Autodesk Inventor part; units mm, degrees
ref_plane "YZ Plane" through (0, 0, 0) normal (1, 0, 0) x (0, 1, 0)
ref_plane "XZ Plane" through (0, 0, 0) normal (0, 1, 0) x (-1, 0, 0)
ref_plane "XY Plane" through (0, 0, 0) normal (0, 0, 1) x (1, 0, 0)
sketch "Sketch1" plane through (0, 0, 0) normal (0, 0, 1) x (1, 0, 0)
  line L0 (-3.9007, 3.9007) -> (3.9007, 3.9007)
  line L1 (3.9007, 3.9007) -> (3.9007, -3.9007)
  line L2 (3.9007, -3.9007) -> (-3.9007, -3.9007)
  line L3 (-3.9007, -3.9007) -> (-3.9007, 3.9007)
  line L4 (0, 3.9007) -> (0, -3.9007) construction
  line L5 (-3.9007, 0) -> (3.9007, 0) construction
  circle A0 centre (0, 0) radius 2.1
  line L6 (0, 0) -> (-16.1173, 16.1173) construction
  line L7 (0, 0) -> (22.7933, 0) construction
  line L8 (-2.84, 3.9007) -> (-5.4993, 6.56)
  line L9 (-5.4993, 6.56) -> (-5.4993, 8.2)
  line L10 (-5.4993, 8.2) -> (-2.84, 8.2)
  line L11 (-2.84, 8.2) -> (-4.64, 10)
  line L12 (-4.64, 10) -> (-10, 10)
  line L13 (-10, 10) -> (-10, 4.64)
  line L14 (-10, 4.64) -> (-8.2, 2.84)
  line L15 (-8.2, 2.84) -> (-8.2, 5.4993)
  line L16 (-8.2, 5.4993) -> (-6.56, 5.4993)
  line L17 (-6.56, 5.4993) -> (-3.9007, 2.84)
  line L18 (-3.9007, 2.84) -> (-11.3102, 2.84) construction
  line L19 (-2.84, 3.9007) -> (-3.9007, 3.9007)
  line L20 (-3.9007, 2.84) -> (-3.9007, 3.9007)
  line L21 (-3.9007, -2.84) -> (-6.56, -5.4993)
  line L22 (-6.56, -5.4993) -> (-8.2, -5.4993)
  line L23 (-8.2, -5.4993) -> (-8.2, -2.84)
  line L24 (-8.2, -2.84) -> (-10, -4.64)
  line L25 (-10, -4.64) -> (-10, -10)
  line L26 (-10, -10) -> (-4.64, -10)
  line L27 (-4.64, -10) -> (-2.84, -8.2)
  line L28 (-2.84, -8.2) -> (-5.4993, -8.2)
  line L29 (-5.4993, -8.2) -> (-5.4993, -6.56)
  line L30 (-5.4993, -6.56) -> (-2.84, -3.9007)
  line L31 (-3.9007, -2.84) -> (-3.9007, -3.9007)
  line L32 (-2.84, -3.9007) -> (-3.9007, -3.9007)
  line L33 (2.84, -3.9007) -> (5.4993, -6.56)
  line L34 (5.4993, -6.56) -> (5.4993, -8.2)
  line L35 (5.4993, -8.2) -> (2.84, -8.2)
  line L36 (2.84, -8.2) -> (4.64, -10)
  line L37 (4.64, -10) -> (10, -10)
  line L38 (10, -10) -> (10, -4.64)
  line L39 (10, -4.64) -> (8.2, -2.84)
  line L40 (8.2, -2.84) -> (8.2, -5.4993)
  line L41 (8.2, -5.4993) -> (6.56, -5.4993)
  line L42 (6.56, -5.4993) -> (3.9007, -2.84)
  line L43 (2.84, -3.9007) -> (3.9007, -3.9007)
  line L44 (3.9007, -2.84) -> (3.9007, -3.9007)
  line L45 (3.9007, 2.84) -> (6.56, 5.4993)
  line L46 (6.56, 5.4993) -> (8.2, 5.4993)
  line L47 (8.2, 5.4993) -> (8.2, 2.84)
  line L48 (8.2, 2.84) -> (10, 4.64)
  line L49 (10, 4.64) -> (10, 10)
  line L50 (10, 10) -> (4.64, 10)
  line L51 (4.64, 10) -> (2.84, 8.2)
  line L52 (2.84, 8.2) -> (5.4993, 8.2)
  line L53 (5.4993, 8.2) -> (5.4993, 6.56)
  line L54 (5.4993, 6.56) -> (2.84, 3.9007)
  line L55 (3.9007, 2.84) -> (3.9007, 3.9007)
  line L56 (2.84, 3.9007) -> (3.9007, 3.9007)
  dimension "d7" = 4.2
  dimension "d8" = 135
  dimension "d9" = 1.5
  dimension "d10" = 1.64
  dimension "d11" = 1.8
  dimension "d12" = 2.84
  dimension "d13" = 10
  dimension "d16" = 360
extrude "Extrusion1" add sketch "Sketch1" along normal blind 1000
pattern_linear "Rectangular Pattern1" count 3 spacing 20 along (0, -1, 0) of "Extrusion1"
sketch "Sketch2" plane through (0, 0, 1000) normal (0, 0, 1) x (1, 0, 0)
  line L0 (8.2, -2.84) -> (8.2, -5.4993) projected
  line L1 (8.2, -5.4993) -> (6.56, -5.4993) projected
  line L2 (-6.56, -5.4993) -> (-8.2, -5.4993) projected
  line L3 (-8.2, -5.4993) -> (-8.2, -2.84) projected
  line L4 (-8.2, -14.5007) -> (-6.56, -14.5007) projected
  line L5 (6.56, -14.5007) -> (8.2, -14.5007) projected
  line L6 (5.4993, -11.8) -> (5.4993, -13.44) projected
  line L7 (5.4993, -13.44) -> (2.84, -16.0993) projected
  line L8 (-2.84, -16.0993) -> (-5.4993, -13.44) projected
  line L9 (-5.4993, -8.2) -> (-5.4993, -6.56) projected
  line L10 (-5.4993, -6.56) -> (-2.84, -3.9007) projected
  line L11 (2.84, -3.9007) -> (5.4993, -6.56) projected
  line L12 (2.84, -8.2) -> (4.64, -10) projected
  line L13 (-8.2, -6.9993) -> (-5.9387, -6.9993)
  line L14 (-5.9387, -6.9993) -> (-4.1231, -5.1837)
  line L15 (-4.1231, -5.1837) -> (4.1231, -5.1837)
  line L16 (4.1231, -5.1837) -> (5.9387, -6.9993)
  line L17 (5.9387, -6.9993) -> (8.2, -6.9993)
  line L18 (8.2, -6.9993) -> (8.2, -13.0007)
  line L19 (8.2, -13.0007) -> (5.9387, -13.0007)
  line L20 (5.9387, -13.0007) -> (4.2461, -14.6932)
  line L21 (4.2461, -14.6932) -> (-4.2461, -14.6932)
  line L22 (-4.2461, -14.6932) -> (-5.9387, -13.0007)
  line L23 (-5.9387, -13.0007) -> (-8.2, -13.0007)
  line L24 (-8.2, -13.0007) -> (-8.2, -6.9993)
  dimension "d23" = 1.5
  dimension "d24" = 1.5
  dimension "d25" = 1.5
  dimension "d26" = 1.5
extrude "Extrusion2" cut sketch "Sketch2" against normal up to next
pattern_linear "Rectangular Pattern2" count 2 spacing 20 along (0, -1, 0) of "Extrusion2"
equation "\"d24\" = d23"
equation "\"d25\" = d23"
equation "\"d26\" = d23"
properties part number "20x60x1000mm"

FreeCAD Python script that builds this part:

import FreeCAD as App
import Part
import Sketcher

doc = App.newDocument("Part")
body = doc.addObject("PartDesign::Body", "Body")

# Sketch on XY plane
sketch1 = body.newObject("Sketcher::SketchObject", "Sketch")
sketch1.AttachmentSupport = (doc.getObject("XY_Plane"), [""])
sketch1.MapMode = "FlatFace"
sketch1.addGeometry(Part.LineSegment(App.Vector(-6.56, 5.4993, 0), App.Vector(-3.9007, 2.84, 0)), False)
sketch1.addGeometry(Part.LineSegment(App.Vector(-3.9007, 2.84, 0), App.Vector(-3.9007, -2.84, 0)), False)
sketch1.addGeometry(Part.LineSegment(App.Vector(-3.9007, -2.84, 0), App.Vector(-6.56, -5.4993, 0)), False)
sketch1.addGeometry(Part.LineSegment(App.Vector(-6.56, -5.4993, 0), App.Vector(-8.2, -5.4993, 0)), False)
sketch1.addGeometry(Part.LineSegment(App.Vector(-8.2, -5.4993, 0), App.Vector(-8.2, -2.84, 0)), False)
sketch1.addGeometry(Part.LineSegment(App.Vector(-8.2, -2.84, 0), App.Vector(-10, -4.64, 0)), False)
sketch1.addGeometry(Part.LineSegment(App.Vector(-10, -4.64, 0), App.Vector(-10, -10, 0)), False)
sketch1.addGeometry(Part.LineSegment(App.Vector(-10, -10, 0), App.Vector(-4.64, -10, 0)), False)
sketch1.addGeometry(Part.LineSegment(App.Vector(-4.64, -10, 0), App.Vector(-2.84, -8.2, 0)), False)
sketch1.addGeometry(Part.LineSegment(App.Vector(-2.84, -8.2, 0), App.Vector(-5.4993, -8.2, 0)), False)
sketch1.addGeometry(Part.LineSegment(App.Vector(-5.4993, -8.2, 0), App.Vector(-5.4993, -6.56, 0)), False)
sketch1.addGeometry(Part.LineSegment(App.Vector(-5.4993, -6.56, 0), App.Vector(-2.84, -3.9007, 0)), False)
sketch1.addGeometry(Part.LineSegment(App.Vector(-2.84, -3.9007, 0), App.Vector(2.84, -3.9007, 0)), False)
sketch1.addGeometry(Part.LineSegment(App.Vector(2.84, -3.9007, 0), App.Vector(5.4993, -6.56, 0)), False)
sketch1.addGeometry(Part.LineSegment(App.Vector(5.4993, -6.56, 0), App.Vector(5.4993, -8.2, 0)), False)
sketch1.addGeometry(Part.LineSegment(App.Vector(5.4993, -8.2, 0), App.Vector(2.84, -8.2, 0)), False)
sketch1.addGeometry(Part.LineSegment(App.Vector(2.84, -8.2, 0), App.Vector(4.64, -10, 0)), False)
sketch1.addGeometry(Part.LineSegment(App.Vector(4.64, -10, 0), App.Vector(10, -10, 0)), False)
sketch1.addGeometry(Part.LineSegment(App.Vector(10, -10, 0), App.Vector(10, -4.64, 0)), False)
sketch1.addGeometry(Part.LineSegment(App.Vector(10, -4.64, 0), App.Vector(8.2, -2.84, 0)), False)
sketch1.addGeometry(Part.LineSegment(App.Vector(8.2, -2.84, 0), App.Vector(8.2, -5.4993, 0)), False)
sketch1.addGeometry(Part.LineSegment(App.Vector(8.2, -5.4993, 0), App.Vector(6.56, -5.4993, 0)), False)
sketch1.addGeometry(Part.LineSegment(App.Vector(6.56, -5.4993, 0), App.Vector(3.9007, -2.84, 0)), False)
sketch1.addGeometry(Part.LineSegment(App.Vector(3.9007, -2.84, 0), App.Vector(3.9007, 2.84, 0)), False)
sketch1.addGeometry(Part.LineSegment(App.Vector(3.9007, 2.84, 0), App.Vector(6.56, 5.4993, 0)), False)
sketch1.addGeometry(Part.LineSegment(App.Vector(6.56, 5.4993, 0), App.Vector(8.2, 5.4993, 0)), False)
sketch1.addGeometry(Part.LineSegment(App.Vector(8.2, 5.4993, 0), App.Vector(8.2, 2.84, 0)), False)
sketch1.addGeometry(Part.LineSegment(App.Vector(8.2, 2.84, 0), App.Vector(10, 4.64, 0)), False)
sketch1.addGeometry(Part.LineSegment(App.Vector(10, 4.64, 0), App.Vector(10, 10, 0)), False)
sketch1.addGeometry(Part.LineSegment(App.Vector(10, 10, 0), App.Vector(4.64, 10, 0)), False)
sketch1.addGeometry(Part.LineSegment(App.Vector(4.64, 10, 0), App.Vector(2.84, 8.2, 0)), False)
sketch1.addGeometry(Part.LineSegment(App.Vector(2.84, 8.2, 0), App.Vector(5.4993, 8.2, 0)), False)
sketch1.addGeometry(Part.LineSegment(App.Vector(5.4993, 8.2, 0), App.Vector(5.4993, 6.56, 0)), False)
sketch1.addGeometry(Part.LineSegment(App.Vector(5.4993, 6.56, 0), App.Vector(2.84, 3.9007, 0)), False)
sketch1.addGeometry(Part.LineSegment(App.Vector(2.84, 3.9007, 0), App.Vector(-2.84, 3.9007, 0)), False)
sketch1.addGeometry(Part.LineSegment(App.Vector(-2.84, 3.9007, 0), App.Vector(-5.4993, 6.56, 0)), False)
sketch1.addGeometry(Part.LineSegment(App.Vector(-5.4993, 6.56, 0), App.Vector(-5.4993, 8.2, 0)), False)
sketch1.addGeometry(Part.LineSegment(App.Vector(-5.4993, 8.2, 0), App.Vector(-2.84, 8.2, 0)), False)
sketch1.addGeometry(Part.LineSegment(App.Vector(-2.84, 8.2, 0), App.Vector(-4.64, 10, 0)), False)
sketch1.addGeometry(Part.LineSegment(App.Vector(-4.64, 10, 0), App.Vector(-10, 10, 0)), False)
sketch1.addGeometry(Part.LineSegment(App.Vector(-10, 10, 0), App.Vector(-10, 4.64, 0)), False)
sketch1.addGeometry(Part.LineSegment(App.Vector(-10, 4.64, 0), App.Vector(-8.2, 2.84, 0)), False)
sketch1.addGeometry(Part.LineSegment(App.Vector(-8.2, 2.84, 0), App.Vector(-8.2, 5.4993, 0)), False)
sketch1.addGeometry(Part.LineSegment(App.Vector(-8.2, 5.4993, 0), App.Vector(-6.56, 5.4993, 0)), False)
sketch1.addGeometry(Part.Circle(App.Vector(0, 0, 0), App.Vector(0, 0, 1), 2.1), False)
sketch1.addConstraint(Sketcher.Constraint("Coincident", 0, 2, 1, 1))
sketch1.addConstraint(Sketcher.Constraint("Coincident", 1, 2, 2, 1))
sketch1.addConstraint(Sketcher.Constraint("Coincident", 2, 2, 3, 1))
sketch1.addConstraint(Sketcher.Constraint("Coincident", 3, 2, 4, 1))
sketch1.addConstraint(Sketcher.Constraint("Coincident", 4, 2, 5, 1))
sketch1.addConstraint(Sketcher.Constraint("Coincident", 5, 2, 6, 1))
sketch1.addConstraint(Sketcher.Constraint("Coincident", 6, 2, 7, 1))
sketch1.addConstraint(Sketcher.Constraint("Coincident", 7, 2, 8, 1))
sketch1.addConstraint(Sketcher.Constraint("Coincident", 8, 2, 9, 1))
sketch1.addConstraint(Sketcher.Constraint("Coincident", 9, 2, 10, 1))
sketch1.addConstraint(Sketcher.Constraint("Coincident", 10, 2, 11, 1))
sketch1.addConstraint(Sketcher.Constraint("Coincident", 11, 2, 12, 1))
sketch1.addConstraint(Sketcher.Constraint("Coincident", 12, 2, 13, 1))
sketch1.addConstraint(Sketcher.Constraint("Coincident", 13, 2, 14, 1))
sketch1.addConstraint(Sketcher.Constraint("Coincident", 14, 2, 15, 1))
sketch1.addConstraint(Sketcher.Constraint("Coincident", 15, 2, 16, 1))
sketch1.addConstraint(Sketcher.Constraint("Coincident", 16, 2, 17, 1))
sketch1.addConstraint(Sketcher.Constraint("Coincident", 17, 2, 18, 1))
sketch1.addConstraint(Sketcher.Constraint("Coincident", 18, 2, 19, 1))
sketch1.addConstraint(Sketcher.Constraint("Coincident", 19, 2, 20, 1))
sketch1.addConstraint(Sketcher.Constraint("Coincident", 20, 2, 21, 1))
sketch1.addConstraint(Sketcher.Constraint("Coincident", 21, 2, 22, 1))
sketch1.addConstraint(Sketcher.Constraint("Coincident", 22, 2, 23, 1))
sketch1.addConstraint(Sketcher.Constraint("Coincident", 23, 2, 24, 1))
sketch1.addConstraint(Sketcher.Constraint("Coincident", 24, 2, 25, 1))
sketch1.addConstraint(Sketcher.Constraint("Coincident", 25, 2, 26, 1))
sketch1.addConstraint(Sketcher.Constraint("Coincident", 26, 2, 27, 1))
sketch1.addConstraint(Sketcher.Constraint("Coincident", 27, 2, 28, 1))
sketch1.addConstraint(Sketcher.Constraint("Coincident", 28, 2, 29, 1))
sketch1.addConstraint(Sketcher.Constraint("Coincident", 29, 2, 30, 1))
sketch1.addConstraint(Sketcher.Constraint("Coincident", 30, 2, 31, 1))
sketch1.addConstraint(Sketcher.Constraint("Coincident", 31, 2, 32, 1))
sketch1.addConstraint(Sketcher.Constraint("Coincident", 32, 2, 33, 1))
sketch1.addConstraint(Sketcher.Constraint("Coincident", 33, 2, 34, 1))
sketch1.addConstraint(Sketcher.Constraint("Coincident", 34, 2, 35, 1))
sketch1.addConstraint(Sketcher.Constraint("Coincident", 35, 2, 36, 1))
sketch1.addConstraint(Sketcher.Constraint("Coincident", 36, 2, 37, 1))
sketch1.addConstraint(Sketcher.Constraint("Coincident", 37, 2, 38, 1))
sketch1.addConstraint(Sketcher.Constraint("Coincident", 38, 2, 39, 1))
sketch1.addConstraint(Sketcher.Constraint("Coincident", 39, 2, 40, 1))
sketch1.addConstraint(Sketcher.Constraint("Coincident", 40, 2, 41, 1))
sketch1.addConstraint(Sketcher.Constraint("Coincident", 41, 2, 42, 1))
sketch1.addConstraint(Sketcher.Constraint("Coincident", 42, 2, 43, 1))
sketch1.addConstraint(Sketcher.Constraint("Coincident", 43, 2, 0, 1))
sketch1.addConstraint(Sketcher.Constraint("Vertical", 1))
sketch1.addConstraint(Sketcher.Constraint("Horizontal", 3))
sketch1.addConstraint(Sketcher.Constraint("Vertical", 4))
sketch1.addConstraint(Sketcher.Constraint("Vertical", 6))
sketch1.addConstraint(Sketcher.Constraint("Horizontal", 7))
sketch1.addConstraint(Sketcher.Constraint("Horizontal", 9))
sketch1.addConstraint(Sketcher.Constraint("Vertical", 10))
sketch1.addConstraint(Sketcher.Constraint("Horizontal", 12))
sketch1.addConstraint(Sketcher.Constraint("Vertical", 14))
sketch1.addConstraint(Sketcher.Constraint("Horizontal", 15))
sketch1.addConstraint(Sketcher.Constraint("Horizontal", 17))
sketch1.addConstraint(Sketcher.Constraint("Vertical", 18))
sketch1.addConstraint(Sketcher.Constraint("Vertical", 20))
sketch1.addConstraint(Sketcher.Constraint("Horizontal", 21))
sketch1.addConstraint(Sketcher.Constraint("Vertical", 23))
sketch1.addConstraint(Sketcher.Constraint("Horizontal", 25))
sketch1.addConstraint(Sketcher.Constraint("Vertical", 26))
sketch1.addConstraint(Sketcher.Constraint("Vertical", 28))
sketch1.addConstraint(Sketcher.Constraint("Horizontal", 29))
sketch1.addConstraint(Sketcher.Constraint("Horizontal", 31))
sketch1.addConstraint(Sketcher.Constraint("Vertical", 32))
sketch1.addConstraint(Sketcher.Constraint("Horizontal", 34))
sketch1.addConstraint(Sketcher.Constraint("Vertical", 36))
sketch1.addConstraint(Sketcher.Constraint("Horizontal", 37))
sketch1.addConstraint(Sketcher.Constraint("Horizontal", 39))
sketch1.addConstraint(Sketcher.Constraint("Vertical", 40))
sketch1.addConstraint(Sketcher.Constraint("Vertical", 42))
sketch1.addConstraint(Sketcher.Constraint("Horizontal", 43))
sketch1.addConstraint(Sketcher.Constraint("Coincident", 44, 3, -1, 1))
sketch1.addConstraint(Sketcher.Constraint("Symmetric", 0, 2, 22, 2, -1, 1))
sketch1.addConstraint(Sketcher.Constraint("Symmetric", 2, 2, 24, 2, -1, 1))
sketch1.addConstraint(Sketcher.Constraint("Symmetric", 4, 2, 26, 2, -1, 1))
sketch1.addConstraint(Sketcher.Constraint("Symmetric", 5, 2, 27, 2, -1, 1))
sketch1.addConstraint(Sketcher.Constraint("Symmetric", 7, 2, 29, 2, -1, 1))
sketch1.addConstraint(Sketcher.Constraint("Symmetric", 8, 2, 30, 2, -1, 1))
sketch1.addConstraint(Sketcher.Constraint("Symmetric", 10, 2, 32, 2, -1, 1))
sketch1.addConstraint(Sketcher.Constraint("Symmetric", 11, 2, 33, 2, -1, 1))
sketch1.addConstraint(Sketcher.Constraint("Symmetric", 13, 2, 35, 2, -1, 1))
sketch1.addConstraint(Sketcher.Constraint("Symmetric", 15, 2, 37, 2, -1, 1))
sketch1.addConstraint(Sketcher.Constraint("Symmetric", 16, 2, 38, 2, -1, 1))
sketch1.addConstraint(Sketcher.Constraint("Symmetric", 18, 2, 40, 2, -1, 1))
sketch1.addConstraint(Sketcher.Constraint("Symmetric", 19, 2, 41, 2, -1, 1))
sketch1.addConstraint(Sketcher.Constraint("Symmetric", 21, 2, 43, 2, -1, 1))
sketch1.addConstraint(Sketcher.Constraint("Symmetric", 10, 2, 13, 2, -2))
sketch1.addConstraint(Sketcher.Constraint("Symmetric", 8, 2, 15, 2, -2))
sketch1.addConstraint(Sketcher.Constraint("Symmetric", 7, 2, 16, 2, -2))
sketch1.addConstraint(Sketcher.Constraint("Symmetric", 5, 2, 18, 2, -2))
sketch1.addConstraint(Sketcher.Constraint("Symmetric", 4, 2, 19, 2, -2))
sketch1.addConstraint(Sketcher.Constraint("Symmetric", 2, 2, 21, 2, -2))
sketch1.addConstraint(Sketcher.Constraint("Perpendicular", 0, 2))
sketch1.addConstraint(Sketcher.Constraint("Parallel", 2, 5))
sketch1.addConstraint(Sketcher.Constraint("Parallel", 5, 8))
sketch1.addConstraint(Sketcher.Constraint("Parallel", 8, 11))
sketch1.addConstraint(Sketcher.Constraint("Perpendicular", 11, 13))
sketch1.addConstraint(Sketcher.Constraint("Parallel", 13, 16))
sketch1.addConstraint(Sketcher.Constraint("Perpendicular", 22, 24))
sketch1.addConstraint(Sketcher.Constraint("Perpendicular", 33, 35))
sketch1.addConstraint(Sketcher.Constraint("Horizontal", 1, 2, 4, 2))
sketch1.addConstraint(Sketcher.Constraint("Vertical", 8, 2, 11, 2))
sketch1.addConstraint(Sketcher.Constraint("Equal", 34, 1))
sketch1.addConstraint(Sketcher.Constraint("Equal", 37, 4))
sketch1.addConstraint(Sketcher.Constraint("Equal", 39, 6))
sketch1.addConstraint(Sketcher.Constraint("Equal", 43, 10))
sketch1.addConstraint(Sketcher.Constraint("Equal", 5, 8))
sketch1.addConstraint(Sketcher.Constraint("Diameter", 44, 4.2))
sketch1.addConstraint(Sketcher.Constraint("DistanceX", 5, 2, -1, 1, 10.0))
sketch1.addConstraint(Sketcher.Constraint("DistanceX", 3, 2, 3, 1, 1.64))
sketch1.addConstraint(Sketcher.Constraint("DistanceX", 5, 2, 3, 2, 1.8))
sketch1.addConstraint(Sketcher.Constraint("DistanceY", -1, 1, 0, 2, 2.84))
sketch1.addConstraint(Sketcher.Constraint("DistanceX", 9, 2, 9, 1, 2.6593))
pad1 = body.newObject("PartDesign::Pad", "Pad")
pad1.Profile = sketch1
pad1.Length = 1000
doc.recompute()

linearpattern = body.newObject("PartDesign::LinearPattern", "LinearPattern")
linearpattern.Originals = [pad1]
linearpattern.Direction = (doc.getObject("Y_Axis"), [""])
linearpattern.Mode = "offset"
linearpattern.Offset = 20
linearpattern.Occurrences = 3
linearpattern.Reversed = True
body.Tip = linearpattern

# Sketch on XY plane
sketch2 = body.newObject("Sketcher::SketchObject", "Sketch001")
sketch2.AttachmentSupport = (doc.getObject("XY_Plane"), [""])
sketch2.MapMode = "FlatFace"
sketch2.AttachmentOffset = App.Placement(App.Vector(0, 0, 1000), App.Rotation())
sketch2.addGeometry(Part.LineSegment(App.Vector(4.2461, -14.6932, 0), App.Vector(5.4993, -13.44, 0)), False)
sketch2.addGeometry(Part.LineSegment(App.Vector(5.499337, -13.440037, 0), App.Vector(5.9387, -13.0007, 0)), False)
sketch2.addGeometry(Part.LineSegment(App.Vector(5.9387, -13.0007, 0), App.Vector(8.2, -13.0007, 0)), False)
sketch2.addGeometry(Part.LineSegment(App.Vector(8.2, -13.0007, 0), App.Vector(8.2, -6.9993, 0)), False)
sketch2.addGeometry(Part.LineSegment(App.Vector(8.2, -6.9993, 0), App.Vector(5.9387, -6.9993, 0)), False)
sketch2.addGeometry(Part.LineSegment(App.Vector(5.9387, -6.9993, 0), App.Vector(5.49935, -6.55995, 0)), False)
sketch2.addGeometry(Part.LineSegment(App.Vector(5.4993, -6.56, 0), App.Vector(4.12305, -5.18375, 0)), False)
sketch2.addGeometry(Part.LineSegment(App.Vector(4.1231, -5.1837, 0), App.Vector(-4.1231, -5.1837, 0)), False)
sketch2.addGeometry(Part.LineSegment(App.Vector(-4.12305, -5.18375, 0), App.Vector(-5.4993, -6.56, 0)), False)
sketch2.addGeometry(Part.LineSegment(App.Vector(-5.49935, -6.55995, 0), App.Vector(-5.9387, -6.9993, 0)), False)
sketch2.addGeometry(Part.LineSegment(App.Vector(-5.9387, -6.9993, 0), App.Vector(-8.2, -6.9993, 0)), False)
sketch2.addGeometry(Part.LineSegment(App.Vector(-8.2, -6.9993, 0), App.Vector(-8.2, -13.0007, 0)), False)
sketch2.addGeometry(Part.LineSegment(App.Vector(-8.2, -13.0007, 0), App.Vector(-5.9387, -13.0007, 0)), False)
sketch2.addGeometry(Part.LineSegment(App.Vector(-5.9387, -13.0007, 0), App.Vector(-5.499337, -13.440037, 0)), False)
sketch2.addGeometry(Part.LineSegment(App.Vector(-5.4993, -13.44, 0), App.Vector(-4.2461, -14.6932, 0)), False)
sketch2.addGeometry(Part.LineSegment(App.Vector(-4.2461, -14.6932, 0), App.Vector(4.2461, -14.6932, 0)), False)
sketch2.addConstraint(Sketcher.Constraint("Coincident", 0, 2, 1, 1))
sketch2.addConstraint(Sketcher.Constraint("Coincident", 1, 2, 2, 1))
sketch2.addConstraint(Sketcher.Constraint("Coincident", 2, 2, 3, 1))
sketch2.addConstraint(Sketcher.Constraint("Coincident", 3, 2, 4, 1))
sketch2.addConstraint(Sketcher.Constraint("Coincident", 4, 2, 5, 1))
sketch2.addConstraint(Sketcher.Constraint("Coincident", 5, 2, 6, 1))
sketch2.addConstraint(Sketcher.Constraint("Coincident", 6, 2, 7, 1))
sketch2.addConstraint(Sketcher.Constraint("Coincident", 7, 2, 8, 1))
sketch2.addConstraint(Sketcher.Constraint("Coincident", 8, 2, 9, 1))
sketch2.addConstraint(Sketcher.Constraint("Coincident", 9, 2, 10, 1))
sketch2.addConstraint(Sketcher.Constraint("Coincident", 10, 2, 11, 1))
sketch2.addConstraint(Sketcher.Constraint("Coincident", 11, 2, 12, 1))
sketch2.addConstraint(Sketcher.Constraint("Coincident", 12, 2, 13, 1))
sketch2.addConstraint(Sketcher.Constraint("Coincident", 13, 2, 14, 1))
sketch2.addConstraint(Sketcher.Constraint("Coincident", 14, 2, 15, 1))
sketch2.addConstraint(Sketcher.Constraint("Coincident", 15, 2, 0, 1))
sketch2.addConstraint(Sketcher.Constraint("Horizontal", 2))
sketch2.addConstraint(Sketcher.Constraint("Vertical", 3))
sketch2.addConstraint(Sketcher.Constraint("Horizontal", 4))
sketch2.addConstraint(Sketcher.Constraint("Horizontal", 7))
sketch2.addConstraint(Sketcher.Constraint("Horizontal", 10))
sketch2.addConstraint(Sketcher.Constraint("Vertical", 11))
sketch2.addConstraint(Sketcher.Constraint("Horizontal", 12))
sketch2.addConstraint(Sketcher.Constraint("Horizontal", 15))
sketch2.addConstraint(Sketcher.Constraint("Symmetric", 5, 2, 8, 2, -2))
sketch2.addConstraint(Sketcher.Constraint("Symmetric", 4, 2, 9, 2, -2))
sketch2.addConstraint(Sketcher.Constraint("Symmetric", 2, 2, 11, 2, -2))
sketch2.addConstraint(Sketcher.Constraint("Symmetric", 0, 2, 13, 2, -2))
sketch2.addConstraint(Sketcher.Constraint("Parallel", 0, 1))
sketch2.addConstraint(Sketcher.Constraint("Perpendicular", 1, 5))
sketch2.addConstraint(Sketcher.Constraint("Parallel", 5, 6))
sketch2.addConstraint(Sketcher.Constraint("Perpendicular", 6, 8))
sketch2.addConstraint(Sketcher.Constraint("Parallel", 8, 9))
sketch2.addConstraint(Sketcher.Constraint("Perpendicular", 9, 13))
sketch2.addConstraint(Sketcher.Constraint("Parallel", 13, 14))
sketch2.addConstraint(Sketcher.Constraint("Vertical", 1, 2, 4, 2))
sketch2.addConstraint(Sketcher.Constraint("Vertical", 0, 2, 5, 2))
sketch2.addConstraint(Sketcher.Constraint("DistanceX", -1, 1, 2, 2, 8.2))
sketch2.addConstraint(Sketcher.Constraint("DistanceY", 0, 2, -1, 1, 13.44))
sketch2.addConstraint(Sketcher.Constraint("DistanceY", 5, 2, -1, 1, 6.56))
sketch2.addConstraint(Sketcher.Constraint("DistanceX", 2, 1, 2, 2, 2.2613))
sketch2.addConstraint(Sketcher.Constraint("DistanceX", 7, 2, 7, 1, 8.2462))
sketch2.addConstraint(Sketcher.Constraint("DistanceX", 15, 1, 15, 2, 8.4922))
sketch2.addConstraint(Sketcher.Constraint("DistanceY", 3, 1, 3, 2, 6.0014))
pocket1 = body.newObject("PartDesign::Pocket", "Pocket")
pocket1.Profile = sketch2
pocket1.Length = 1000
doc.recompute()

linearpattern2 = body.newObject("PartDesign::LinearPattern", "LinearPattern001")
linearpattern2.Originals = [pocket1]
linearpattern2.Direction = (doc.getObject("Y_Axis"), [""])
linearpattern2.Mode = "offset"
linearpattern2.Offset = 20
linearpattern2.Occurrences = 2
linearpattern2.Reversed = True
body.Tip = linearpattern2

doc.recompute()
